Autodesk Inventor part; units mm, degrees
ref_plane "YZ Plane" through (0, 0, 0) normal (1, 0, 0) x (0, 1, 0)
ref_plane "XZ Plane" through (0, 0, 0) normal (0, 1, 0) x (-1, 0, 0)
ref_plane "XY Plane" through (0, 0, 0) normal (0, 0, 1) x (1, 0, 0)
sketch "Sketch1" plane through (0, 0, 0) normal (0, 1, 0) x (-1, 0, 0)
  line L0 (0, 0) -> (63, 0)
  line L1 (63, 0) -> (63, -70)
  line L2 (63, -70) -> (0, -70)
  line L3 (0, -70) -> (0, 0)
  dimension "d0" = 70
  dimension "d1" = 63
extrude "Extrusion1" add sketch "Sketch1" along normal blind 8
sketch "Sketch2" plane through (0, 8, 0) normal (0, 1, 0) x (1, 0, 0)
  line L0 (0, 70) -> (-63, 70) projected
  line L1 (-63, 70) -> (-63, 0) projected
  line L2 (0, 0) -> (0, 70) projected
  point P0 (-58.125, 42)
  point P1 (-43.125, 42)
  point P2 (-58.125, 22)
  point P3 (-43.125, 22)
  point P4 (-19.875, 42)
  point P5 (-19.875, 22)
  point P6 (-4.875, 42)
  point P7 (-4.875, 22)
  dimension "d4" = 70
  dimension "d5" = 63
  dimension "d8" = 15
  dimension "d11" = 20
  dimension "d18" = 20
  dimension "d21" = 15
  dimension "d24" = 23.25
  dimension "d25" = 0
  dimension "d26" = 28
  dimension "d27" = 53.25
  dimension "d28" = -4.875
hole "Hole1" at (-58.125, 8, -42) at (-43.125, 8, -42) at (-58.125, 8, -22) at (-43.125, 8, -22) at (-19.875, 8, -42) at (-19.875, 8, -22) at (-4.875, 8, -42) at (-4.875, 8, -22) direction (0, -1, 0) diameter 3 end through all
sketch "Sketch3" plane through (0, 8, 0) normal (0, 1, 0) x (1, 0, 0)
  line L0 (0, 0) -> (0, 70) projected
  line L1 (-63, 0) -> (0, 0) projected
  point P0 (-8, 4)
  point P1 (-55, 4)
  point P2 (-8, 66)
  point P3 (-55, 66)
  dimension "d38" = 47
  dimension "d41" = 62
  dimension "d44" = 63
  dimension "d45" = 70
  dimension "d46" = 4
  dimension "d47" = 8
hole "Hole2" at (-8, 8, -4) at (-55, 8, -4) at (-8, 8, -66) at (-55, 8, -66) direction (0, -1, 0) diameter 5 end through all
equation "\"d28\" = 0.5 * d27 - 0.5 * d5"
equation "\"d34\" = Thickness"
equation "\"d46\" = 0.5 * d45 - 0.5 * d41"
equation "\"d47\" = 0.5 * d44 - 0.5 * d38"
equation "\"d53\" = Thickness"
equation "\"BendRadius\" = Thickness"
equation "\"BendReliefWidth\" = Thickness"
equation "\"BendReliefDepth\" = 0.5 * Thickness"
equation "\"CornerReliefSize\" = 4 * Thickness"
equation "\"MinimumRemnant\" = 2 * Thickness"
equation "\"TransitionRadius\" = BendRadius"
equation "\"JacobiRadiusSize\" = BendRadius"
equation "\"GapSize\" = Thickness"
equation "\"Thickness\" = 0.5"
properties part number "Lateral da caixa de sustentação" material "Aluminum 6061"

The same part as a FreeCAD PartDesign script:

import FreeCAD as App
import Part
import Sketcher
from FreeCAD import Vector

doc = App.newDocument("Part")
body = doc.addObject("PartDesign::Body", "Body")

# Sketch on XZ plane
sketch1 = body.newObject("Sketcher::SketchObject", "Sketch")
sketch1.AttachmentSupport = (doc.getObject("XZ_Plane"), [""])
sketch1.MapMode = "FlatFace"
sketch1.addGeometry([
    Part.LineSegment(Vector(-63, 0, 0), Vector(0, 0, 0)),
    Part.LineSegment(Vector(0, 0, 0), Vector(0, -70, 0)),
    Part.LineSegment(Vector(0, -70, 0), Vector(-63, -70, 0)),
    Part.LineSegment(Vector(-63, -70, 0), Vector(-63, 0, 0)),
], False)
sketch1.addConstraint([
    Sketcher.Constraint("Coincident", 0, 2, 1, 1),
    Sketcher.Constraint("Coincident", 1, 2, 2, 1),
    Sketcher.Constraint("Coincident", 2, 2, 3, 1),
    Sketcher.Constraint("Coincident", 3, 2, 0, 1),
    Sketcher.Constraint("Horizontal", 0),
    Sketcher.Constraint("Vertical", 1),
    Sketcher.Constraint("Horizontal", 2),
    Sketcher.Constraint("Vertical", 3),
    Sketcher.Constraint("Coincident", 0, 2, -1, 1),
    Sketcher.Constraint("DistanceX", 0, 1, 0, 2, 63.0),
    Sketcher.Constraint("DistanceY", 1, 2, 1, 1, 70.0),
])
pad1 = body.newObject("PartDesign::Pad", "Pad")
pad1.Profile = sketch1
pad1.Length = 8
pad1.Reversed = True

# Sketch on XZ plane
sketch2 = body.newObject("Sketcher::SketchObject", "Sketch001")
sketch2.AttachmentSupport = (doc.getObject("XZ_Plane"), [""])
sketch2.MapMode = "FlatFace"
sketch2.AttachmentOffset = App.Placement(Vector(0, 0, -8), App.Rotation())
sketch2.addGeometry([
    Part.Circle(Vector(-58.1, -42, 0), Vector(0, 0, 1), 1.5),  # 0
    Part.Circle(Vector(-43.1, -42, 0), Vector(0, 0, 1), 1.5),  # 1
    Part.Circle(Vector(-58.1, -22, 0), Vector(0, 0, 1), 1.5),  # 2
    Part.Circle(Vector(-43.1, -22, 0), Vector(0, 0, 1), 1.5),  # 3
    Part.Circle(Vector(-19.9, -42, 0), Vector(0, 0, 1), 1.5),  # 4
    Part.Circle(Vector(-19.9, -22, 0), Vector(0, 0, 1), 1.5),  # 5
    Part.Circle(Vector(-4.9, -42, 0), Vector(0, 0, 1), 1.5),  # 6
    Part.Circle(Vector(-4.9, -22, 0), Vector(0, 0, 1), 1.5),  # 7
], False)
sketch2.addConstraint([
    Sketcher.Constraint("Equal", 0, 1),
    Sketcher.Constraint("Equal", 1, 2),
    Sketcher.Constraint("Equal", 2, 3),
    Sketcher.Constraint("Equal", 3, 4),
    Sketcher.Constraint("Equal", 4, 5),
    Sketcher.Constraint("Equal", 5, 6),
    Sketcher.Constraint("Equal", 6, 7),
    Sketcher.Constraint("Horizontal", 0, 3, 1, 3),
    Sketcher.Constraint("Horizontal", 2, 3, 3, 3),
    Sketcher.Constraint("Horizontal", 1, 3, 4, 3),
    Sketcher.Constraint("Horizontal", 3, 3, 5, 3),
    Sketcher.Constraint("Horizontal", 4, 3, 6, 3),
    Sketcher.Constraint("Horizontal", 5, 3, 7, 3),
    Sketcher.Constraint("Vertical", 0, 3, 2, 3),
    Sketcher.Constraint("Vertical", 1, 3, 3, 3),
    Sketcher.Constraint("Vertical", 4, 3, 5, 3),
    Sketcher.Constraint("Vertical", 6, 3, 7, 3),
    Sketcher.Constraint("Diameter", 0, 3.0),
    Sketcher.Constraint("DistanceY", 0, 3, -1, 1, 42.0),
    Sketcher.Constraint("DistanceY", 2, 3, -1, 1, 22.0),
    Sketcher.Constraint("DistanceX", 0, 3, 1, 3, 15.0),
    Sketcher.Constraint("DistanceX", 4, 3, 6, 3, 15.0),
    Sketcher.Constraint("DistanceX", 1, 3, 4, 3, 23.25),
    Sketcher.Constraint("DistanceX", 0, 3, -1, 1, 58.125),
])
doc.recompute()
hole = body.newObject("PartDesign::Hole", "Hole")
hole.Profile = sketch2
hole.ThreadType = "None"
hole.Diameter = 3
hole.DepthType = "ThroughAll"
hole.Reversed = True

# Sketch on XZ plane
sketch3 = body.newObject("Sketcher::SketchObject", "Sketch002")
sketch3.AttachmentSupport = (doc.getObject("XZ_Plane"), [""])
sketch3.MapMode = "FlatFace"
sketch3.AttachmentOffset = App.Placement(Vector(0, 0, -8), App.Rotation())
sketch3.addGeometry([
    Part.Circle(Vector(-8, -4, 0), Vector(0, 0, 1), 2.5),
    Part.Circle(Vector(-55, -4, 0), Vector(0, 0, 1), 2.5),
    Part.Circle(Vector(-8, -66, 0), Vector(0, 0, 1), 2.5),
    Part.Circle(Vector(-55, -66, 0), Vector(0, 0, 1), 2.5),
], False)
sketch3.addConstraint([
    Sketcher.Constraint("Equal", 0, 1),
    Sketcher.Constraint("Equal", 1, 2),
    Sketcher.Constraint("Equal", 2, 3),
    Sketcher.Constraint("Horizontal", 0, 3, 1, 3),
    Sketcher.Constraint("Horizontal", 2, 3, 3, 3),
    Sketcher.Constraint("Vertical", 0, 3, 2, 3),
    Sketcher.Constraint("Vertical", 1, 3, 3, 3),
    Sketcher.Constraint("Diameter", 0, 5.0),
    Sketcher.Constraint("DistanceX", 0, 3, -1, 1, 8.0),
    Sketcher.Constraint("DistanceY", 0, 3, -1, 1, 4.0),
    Sketcher.Constraint("DistanceX", 1, 3, -1, 1, 55.0),
    Sketcher.Constraint("DistanceY", 2, 3, -1, 1, 66.0),
])
doc.recompute()
hole2 = body.newObject("PartDesign::Hole", "Hole001")
hole2.Profile = sketch3
hole2.ThreadType = "None"
hole2.Diameter = 5
hole2.DepthType = "ThroughAll"
hole2.Reversed = True

doc.recompute()
